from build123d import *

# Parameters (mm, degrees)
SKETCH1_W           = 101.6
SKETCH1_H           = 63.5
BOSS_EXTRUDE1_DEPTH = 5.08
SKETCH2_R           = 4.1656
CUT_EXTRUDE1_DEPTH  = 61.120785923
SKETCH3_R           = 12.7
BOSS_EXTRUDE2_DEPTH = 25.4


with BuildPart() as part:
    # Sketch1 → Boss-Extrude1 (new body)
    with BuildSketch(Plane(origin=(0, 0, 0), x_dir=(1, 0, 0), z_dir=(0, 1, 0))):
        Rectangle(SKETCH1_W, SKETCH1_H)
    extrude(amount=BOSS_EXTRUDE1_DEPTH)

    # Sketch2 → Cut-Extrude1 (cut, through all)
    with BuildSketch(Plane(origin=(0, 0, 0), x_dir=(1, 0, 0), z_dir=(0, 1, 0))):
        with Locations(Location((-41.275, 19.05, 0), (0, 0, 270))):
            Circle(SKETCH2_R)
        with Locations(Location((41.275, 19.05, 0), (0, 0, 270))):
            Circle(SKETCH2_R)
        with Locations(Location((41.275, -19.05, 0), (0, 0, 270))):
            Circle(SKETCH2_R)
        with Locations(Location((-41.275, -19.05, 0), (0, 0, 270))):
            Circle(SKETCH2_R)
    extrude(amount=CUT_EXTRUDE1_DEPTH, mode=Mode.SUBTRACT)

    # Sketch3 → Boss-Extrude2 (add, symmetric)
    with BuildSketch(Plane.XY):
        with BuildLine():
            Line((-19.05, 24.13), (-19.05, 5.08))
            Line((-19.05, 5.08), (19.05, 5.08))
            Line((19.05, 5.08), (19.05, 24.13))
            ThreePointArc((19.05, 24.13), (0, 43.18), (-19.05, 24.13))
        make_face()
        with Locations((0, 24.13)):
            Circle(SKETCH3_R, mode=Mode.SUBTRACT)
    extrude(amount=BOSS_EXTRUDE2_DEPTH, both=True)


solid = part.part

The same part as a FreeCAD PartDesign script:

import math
import FreeCAD as App
import Part
import Sketcher
from FreeCAD import Vector
Q = App.Units.Quantity

doc = App.newDocument("Part")
body = doc.addObject("PartDesign::Body", "Body")

sketch1 = body.newObject("Sketcher::SketchObject", "Sketch")
sketch1.AttachmentSupport = (doc.getObject("XZ_Plane"), [""])
sketch1.MapMode = "FlatFace"
sketch1.addGeometry([
    Part.LineSegment(Vector(-50.8, -31.75, 0), Vector(-50.8, 31.75, 0)),
    Part.LineSegment(Vector(-50.8, 31.75, 0), Vector(50.8, 31.75, 0)),
    Part.LineSegment(Vector(50.8, 31.75, 0), Vector(50.8, -31.75, 0)),
    Part.LineSegment(Vector(50.8, -31.75, 0), Vector(-50.8, -31.75, 0)),
], False)
sketch1.addConstraint([
    Sketcher.Constraint("Coincident", 0, 2, 1, 1),
    Sketcher.Constraint("Coincident", 1, 2, 2, 1),
    Sketcher.Constraint("Coincident", 2, 2, 3, 1),
    Sketcher.Constraint("Coincident", 3, 2, 0, 1),
    Sketcher.Constraint("Vertical", 0),
    Sketcher.Constraint("Horizontal", 1),
    Sketcher.Constraint("Vertical", 2),
    Sketcher.Constraint("Horizontal", 3),
    Sketcher.Constraint("Symmetric", 0, 2, 2, 2, -1, 1),
    Sketcher.Constraint("DistanceX", 1, 1, 1, 2, Q("4 in")),
    Sketcher.Constraint("DistanceY", 0, 1, 0, 2, Q("2.5 in")),
])
pad1 = body.newObject("PartDesign::Pad", "Pad")
pad1.Profile = sketch1
pad1.Length = Q("0.2 in")
pad1.Reversed = True

sketch2 = body.newObject("Sketcher::SketchObject", "Sketch001")
sketch2.AttachmentSupport = (doc.getObject("XZ_Plane"), [""])
sketch2.MapMode = "FlatFace"
sketch2.addGeometry([
    Part.Circle(Vector(-41.275, -19.05, 0), Vector(0, 0, 1), 4.1656),
    Part.Circle(Vector(41.275, -19.05, 0), Vector(0, 0, 1), 4.1656),
    Part.Circle(Vector(41.275, 19.05, 0), Vector(0, 0, 1), 4.1656),
    Part.Circle(Vector(-41.275, 19.05, 0), Vector(0, 0, 1), 4.1656),
], False)
sketch2.addConstraint([
    Sketcher.Constraint("Equal", 0, 1),
    Sketcher.Constraint("Equal", 1, 2),
    Sketcher.Constraint("Equal", 2, 3),
    Sketcher.Constraint("Symmetric", 0, 3, 2, 3, -1, 1),
    Sketcher.Constraint("Symmetric", 1, 3, 3, 3, -1, 1),
    Sketcher.Constraint("Symmetric", 0, 3, 1, 3, -2),
    Sketcher.Constraint("Diameter", 0, Q("0.328 in")),
    Sketcher.Constraint("DistanceY", 1, 3, 2, 3, Q("1.5 in")),
    Sketcher.Constraint("DistanceX", 0, 3, 1, 3, Q("3.25 in")),
])
pocket1 = body.newObject("PartDesign::Pocket", "Pocket")
pocket1.Profile = sketch2
pocket1.Type = "ThroughAll"

sketch3 = body.newObject("Sketcher::SketchObject", "Sketch002")
sketch3.AttachmentSupport = (doc.getObject("XY_Plane"), [""])
sketch3.MapMode = "FlatFace"
sketch3.addGeometry([
    Part.LineSegment(Vector(-19.05, 24.13, 0), Vector(-19.05, 5.08, 0)),
    Part.LineSegment(Vector(-19.05, 5.08, 0), Vector(19.05, 5.08, 0)),
    Part.LineSegment(Vector(19.05, 5.08, 0), Vector(19.05, 24.13, 0)),
    Part.ArcOfCircle(Part.Circle(Vector(0, 24.13, 0), Vector(0, 0, 1), 19.05), math.radians(0), math.radians(180)),
    Part.Circle(Vector(0, 24.13, 0), Vector(0, 0, 1), 12.7),
], False)
sketch3.addConstraint([
    Sketcher.Constraint("Coincident", 0, 2, 1, 1),
    Sketcher.Constraint("Coincident", 1, 2, 2, 1),
    Sketcher.Constraint("Tangent", 2, 2, 3, 1),
    Sketcher.Constraint("Tangent", 3, 2, 0, 1),
    Sketcher.Constraint("Vertical", 0),
    Sketcher.Constraint("Horizontal", 1),
    Sketcher.Constraint("Vertical", 2),
    Sketcher.Constraint("Coincident", 4, 3, 3, 3),
    Sketcher.Constraint("PointOnObject", 3, 3, -2),
    Sketcher.Constraint("Diameter", 4, Q("1 in")),
    Sketcher.Constraint("Radius", 3, Q("0.75 in")),
    Sketcher.Constraint("DistanceY", 0, 2, 0, 1, Q("0.75 in")),
    Sketcher.Constraint("DistanceY", -1, 1, 0, 2, Q("0.2 in")),
])
pad2 = body.newObject("PartDesign::Pad", "Pad001")
pad2.Profile = sketch3
pad2.Length = Q("2 in")
pad2.Midplane = True

doc.recompute()
